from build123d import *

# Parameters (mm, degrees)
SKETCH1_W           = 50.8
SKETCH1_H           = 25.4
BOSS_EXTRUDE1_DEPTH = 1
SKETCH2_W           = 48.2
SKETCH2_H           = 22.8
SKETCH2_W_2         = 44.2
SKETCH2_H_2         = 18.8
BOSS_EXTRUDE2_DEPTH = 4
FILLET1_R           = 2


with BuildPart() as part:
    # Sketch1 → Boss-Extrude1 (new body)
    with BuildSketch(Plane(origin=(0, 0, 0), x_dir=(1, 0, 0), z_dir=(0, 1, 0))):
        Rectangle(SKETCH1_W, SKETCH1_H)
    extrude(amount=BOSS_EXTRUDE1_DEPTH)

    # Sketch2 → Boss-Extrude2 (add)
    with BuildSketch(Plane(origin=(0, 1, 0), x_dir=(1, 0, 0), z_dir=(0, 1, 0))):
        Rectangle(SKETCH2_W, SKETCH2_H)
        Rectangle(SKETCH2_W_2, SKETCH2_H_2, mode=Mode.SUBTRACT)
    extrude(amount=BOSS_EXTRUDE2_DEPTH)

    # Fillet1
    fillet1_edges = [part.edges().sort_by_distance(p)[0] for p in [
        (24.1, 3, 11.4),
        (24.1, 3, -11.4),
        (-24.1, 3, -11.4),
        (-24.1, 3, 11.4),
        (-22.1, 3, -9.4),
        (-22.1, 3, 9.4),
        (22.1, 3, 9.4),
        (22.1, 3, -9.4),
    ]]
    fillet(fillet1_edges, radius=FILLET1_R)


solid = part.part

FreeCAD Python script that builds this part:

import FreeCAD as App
import Part
import Sketcher
from FreeCAD import Vector
Q = App.Units.Quantity


def edges_at(feature, points):
    """Names of the edges that pass closest to the given points."""
    edges = feature.Shape.Edges
    near = lambda p: min(range(len(edges)), key=lambda i: edges[i].distToShape(Part.Vertex(*p))[0])
    return sorted({f"Edge{near(p) + 1}" for p in points})

doc = App.newDocument("Part")
body = doc.addObject("PartDesign::Body", "Body")

# Sketch on XZ plane
sketch1 = body.newObject("Sketcher::SketchObject", "Sketch")
sketch1.AttachmentSupport = (doc.getObject("XZ_Plane"), [""])
sketch1.MapMode = "FlatFace"
sketch1.addGeometry(Part.LineSegment(Vector(-25.4, -12.7, 0), Vector(-25.4, 12.7, 0)), False)
sketch1.addGeometry(Part.LineSegment(Vector(-25.4, 12.7, 0), Vector(25.4, 12.7, 0)), False)
sketch1.addGeometry(Part.LineSegment(Vector(25.4, 12.7, 0), Vector(25.4, -12.7, 0)), False)
sketch1.addGeometry(Part.LineSegment(Vector(25.4, -12.7, 0), Vector(-25.4, -12.7, 0)), False)
sketch1.addConstraint(Sketcher.Constraint("Coincident", 0, 2, 1, 1))
sketch1.addConstraint(Sketcher.Constraint("Coincident", 1, 2, 2, 1))
sketch1.addConstraint(Sketcher.Constraint("Coincident", 2, 2, 3, 1))
sketch1.addConstraint(Sketcher.Constraint("Coincident", 3, 2, 0, 1))
sketch1.addConstraint(Sketcher.Constraint("Vertical", 0))
sketch1.addConstraint(Sketcher.Constraint("Horizontal", 1))
sketch1.addConstraint(Sketcher.Constraint("Vertical", 2))
sketch1.addConstraint(Sketcher.Constraint("Horizontal", 3))
sketch1.addConstraint(Sketcher.Constraint("Symmetric", 0, 2, 2, 2, -1, 1))
sketch1.addConstraint(Sketcher.Constraint("DistanceX", 1, 1, 1, 2, Q("50.8 mm")))
sketch1.addConstraint(Sketcher.Constraint("DistanceY", 0, 1, 0, 2, Q("25.4 mm")))
pad1 = body.newObject("PartDesign::Pad", "Pad")
pad1.Profile = sketch1
pad1.Length = 1
pad1.Reversed = True

# Sketch on XZ plane
sketch2 = body.newObject("Sketcher::SketchObject", "Sketch001")
sketch2.AttachmentSupport = (doc.getObject("XZ_Plane"), [""])
sketch2.MapMode = "FlatFace"
sketch2.AttachmentOffset = App.Placement(Vector(0, 0, -1), App.Rotation())
sketch2.addGeometry(Part.LineSegment(Vector(-24.1, -11.4, 0), Vector(-24.1, 11.4, 0)), False)
sketch2.addGeometry(Part.LineSegment(Vector(-24.1, 11.4, 0), Vector(24.1, 11.4, 0)), False)
sketch2.addGeometry(Part.LineSegment(Vector(24.1, 11.4, 0), Vector(24.1, -11.4, 0)), False)
sketch2.addGeometry(Part.LineSegment(Vector(24.1, -11.4, 0), Vector(-24.1, -11.4, 0)), False)
sketch2.addGeometry(Part.LineSegment(Vector(22.1, 9.4, 0), Vector(-22.1, 9.4, 0)), False)
sketch2.addGeometry(Part.LineSegment(Vector(-22.1, 9.4, 0), Vector(-22.1, -9.4, 0)), False)
sketch2.addGeometry(Part.LineSegment(Vector(-22.1, -9.4, 0), Vector(22.1, -9.4, 0)), False)
sketch2.addGeometry(Part.LineSegment(Vector(22.1, -9.4, 0), Vector(22.1, 9.4, 0)), False)
sketch2.addConstraint(Sketcher.Constraint("Coincident", 0, 2, 1, 1))
sketch2.addConstraint(Sketcher.Constraint("Coincident", 1, 2, 2, 1))
sketch2.addConstraint(Sketcher.Constraint("Coincident", 2, 2, 3, 1))
sketch2.addConstraint(Sketcher.Constraint("Coincident", 3, 2, 0, 1))
sketch2.addConstraint(Sketcher.Constraint("Coincident", 4, 2, 5, 1))
sketch2.addConstraint(Sketcher.Constraint("Coincident", 5, 2, 6, 1))
sketch2.addConstraint(Sketcher.Constraint("Coincident", 6, 2, 7, 1))
sketch2.addConstraint(Sketcher.Constraint("Coincident", 7, 2, 4, 1))
sketch2.addConstraint(Sketcher.Constraint("Vertical", 0))
sketch2.addConstraint(Sketcher.Constraint("Horizontal", 1))
sketch2.addConstraint(Sketcher.Constraint("Vertical", 2))
sketch2.addConstraint(Sketcher.Constraint("Horizontal", 3))
sketch2.addConstraint(Sketcher.Constraint("Horizontal", 4))
sketch2.addConstraint(Sketcher.Constraint("Vertical", 5))
sketch2.addConstraint(Sketcher.Constraint("Horizontal", 6))
sketch2.addConstraint(Sketcher.Constraint("Vertical", 7))
sketch2.addConstraint(Sketcher.Constraint("Symmetric", 0, 2, 2, 2, -1, 1))
sketch2.addConstraint(Sketcher.Constraint("Symmetric", 4, 2, 6, 2, -1, 1))
sketch2.addConstraint(Sketcher.Constraint("DistanceX", 1, 1, 1, 2, Q("48.2 mm")))
sketch2.addConstraint(Sketcher.Constraint("DistanceX", 4, 2, 4, 1, Q("44.2 mm")))
sketch2.addConstraint(Sketcher.Constraint("DistanceY", 0, 1, 0, 2, Q("22.8 mm")))
sketch2.addConstraint(Sketcher.Constraint("DistanceY", 5, 2, 5, 1, Q("18.8 mm")))
pad2 = body.newObject("PartDesign::Pad", "Pad001")
pad2.Profile = sketch2
pad2.Length = 4
pad2.Reversed = True
doc.recompute()

fillet = body.newObject("PartDesign::Fillet", "Fillet")
fillet.Base = (pad2, edges_at(pad2, [
    (24.1, 3, 11.4),
    (24.1, 3, -11.4),
    (-24.1, 3, -11.4),
    (-24.1, 3, 11.4),
    (-22.1, 3, -9.4),
    (-22.1, 3, 9.4),
    (22.1, 3, 9.4),
    (22.1, 3, -9.4),
]))
fillet.Radius = 2

doc.recompute()
